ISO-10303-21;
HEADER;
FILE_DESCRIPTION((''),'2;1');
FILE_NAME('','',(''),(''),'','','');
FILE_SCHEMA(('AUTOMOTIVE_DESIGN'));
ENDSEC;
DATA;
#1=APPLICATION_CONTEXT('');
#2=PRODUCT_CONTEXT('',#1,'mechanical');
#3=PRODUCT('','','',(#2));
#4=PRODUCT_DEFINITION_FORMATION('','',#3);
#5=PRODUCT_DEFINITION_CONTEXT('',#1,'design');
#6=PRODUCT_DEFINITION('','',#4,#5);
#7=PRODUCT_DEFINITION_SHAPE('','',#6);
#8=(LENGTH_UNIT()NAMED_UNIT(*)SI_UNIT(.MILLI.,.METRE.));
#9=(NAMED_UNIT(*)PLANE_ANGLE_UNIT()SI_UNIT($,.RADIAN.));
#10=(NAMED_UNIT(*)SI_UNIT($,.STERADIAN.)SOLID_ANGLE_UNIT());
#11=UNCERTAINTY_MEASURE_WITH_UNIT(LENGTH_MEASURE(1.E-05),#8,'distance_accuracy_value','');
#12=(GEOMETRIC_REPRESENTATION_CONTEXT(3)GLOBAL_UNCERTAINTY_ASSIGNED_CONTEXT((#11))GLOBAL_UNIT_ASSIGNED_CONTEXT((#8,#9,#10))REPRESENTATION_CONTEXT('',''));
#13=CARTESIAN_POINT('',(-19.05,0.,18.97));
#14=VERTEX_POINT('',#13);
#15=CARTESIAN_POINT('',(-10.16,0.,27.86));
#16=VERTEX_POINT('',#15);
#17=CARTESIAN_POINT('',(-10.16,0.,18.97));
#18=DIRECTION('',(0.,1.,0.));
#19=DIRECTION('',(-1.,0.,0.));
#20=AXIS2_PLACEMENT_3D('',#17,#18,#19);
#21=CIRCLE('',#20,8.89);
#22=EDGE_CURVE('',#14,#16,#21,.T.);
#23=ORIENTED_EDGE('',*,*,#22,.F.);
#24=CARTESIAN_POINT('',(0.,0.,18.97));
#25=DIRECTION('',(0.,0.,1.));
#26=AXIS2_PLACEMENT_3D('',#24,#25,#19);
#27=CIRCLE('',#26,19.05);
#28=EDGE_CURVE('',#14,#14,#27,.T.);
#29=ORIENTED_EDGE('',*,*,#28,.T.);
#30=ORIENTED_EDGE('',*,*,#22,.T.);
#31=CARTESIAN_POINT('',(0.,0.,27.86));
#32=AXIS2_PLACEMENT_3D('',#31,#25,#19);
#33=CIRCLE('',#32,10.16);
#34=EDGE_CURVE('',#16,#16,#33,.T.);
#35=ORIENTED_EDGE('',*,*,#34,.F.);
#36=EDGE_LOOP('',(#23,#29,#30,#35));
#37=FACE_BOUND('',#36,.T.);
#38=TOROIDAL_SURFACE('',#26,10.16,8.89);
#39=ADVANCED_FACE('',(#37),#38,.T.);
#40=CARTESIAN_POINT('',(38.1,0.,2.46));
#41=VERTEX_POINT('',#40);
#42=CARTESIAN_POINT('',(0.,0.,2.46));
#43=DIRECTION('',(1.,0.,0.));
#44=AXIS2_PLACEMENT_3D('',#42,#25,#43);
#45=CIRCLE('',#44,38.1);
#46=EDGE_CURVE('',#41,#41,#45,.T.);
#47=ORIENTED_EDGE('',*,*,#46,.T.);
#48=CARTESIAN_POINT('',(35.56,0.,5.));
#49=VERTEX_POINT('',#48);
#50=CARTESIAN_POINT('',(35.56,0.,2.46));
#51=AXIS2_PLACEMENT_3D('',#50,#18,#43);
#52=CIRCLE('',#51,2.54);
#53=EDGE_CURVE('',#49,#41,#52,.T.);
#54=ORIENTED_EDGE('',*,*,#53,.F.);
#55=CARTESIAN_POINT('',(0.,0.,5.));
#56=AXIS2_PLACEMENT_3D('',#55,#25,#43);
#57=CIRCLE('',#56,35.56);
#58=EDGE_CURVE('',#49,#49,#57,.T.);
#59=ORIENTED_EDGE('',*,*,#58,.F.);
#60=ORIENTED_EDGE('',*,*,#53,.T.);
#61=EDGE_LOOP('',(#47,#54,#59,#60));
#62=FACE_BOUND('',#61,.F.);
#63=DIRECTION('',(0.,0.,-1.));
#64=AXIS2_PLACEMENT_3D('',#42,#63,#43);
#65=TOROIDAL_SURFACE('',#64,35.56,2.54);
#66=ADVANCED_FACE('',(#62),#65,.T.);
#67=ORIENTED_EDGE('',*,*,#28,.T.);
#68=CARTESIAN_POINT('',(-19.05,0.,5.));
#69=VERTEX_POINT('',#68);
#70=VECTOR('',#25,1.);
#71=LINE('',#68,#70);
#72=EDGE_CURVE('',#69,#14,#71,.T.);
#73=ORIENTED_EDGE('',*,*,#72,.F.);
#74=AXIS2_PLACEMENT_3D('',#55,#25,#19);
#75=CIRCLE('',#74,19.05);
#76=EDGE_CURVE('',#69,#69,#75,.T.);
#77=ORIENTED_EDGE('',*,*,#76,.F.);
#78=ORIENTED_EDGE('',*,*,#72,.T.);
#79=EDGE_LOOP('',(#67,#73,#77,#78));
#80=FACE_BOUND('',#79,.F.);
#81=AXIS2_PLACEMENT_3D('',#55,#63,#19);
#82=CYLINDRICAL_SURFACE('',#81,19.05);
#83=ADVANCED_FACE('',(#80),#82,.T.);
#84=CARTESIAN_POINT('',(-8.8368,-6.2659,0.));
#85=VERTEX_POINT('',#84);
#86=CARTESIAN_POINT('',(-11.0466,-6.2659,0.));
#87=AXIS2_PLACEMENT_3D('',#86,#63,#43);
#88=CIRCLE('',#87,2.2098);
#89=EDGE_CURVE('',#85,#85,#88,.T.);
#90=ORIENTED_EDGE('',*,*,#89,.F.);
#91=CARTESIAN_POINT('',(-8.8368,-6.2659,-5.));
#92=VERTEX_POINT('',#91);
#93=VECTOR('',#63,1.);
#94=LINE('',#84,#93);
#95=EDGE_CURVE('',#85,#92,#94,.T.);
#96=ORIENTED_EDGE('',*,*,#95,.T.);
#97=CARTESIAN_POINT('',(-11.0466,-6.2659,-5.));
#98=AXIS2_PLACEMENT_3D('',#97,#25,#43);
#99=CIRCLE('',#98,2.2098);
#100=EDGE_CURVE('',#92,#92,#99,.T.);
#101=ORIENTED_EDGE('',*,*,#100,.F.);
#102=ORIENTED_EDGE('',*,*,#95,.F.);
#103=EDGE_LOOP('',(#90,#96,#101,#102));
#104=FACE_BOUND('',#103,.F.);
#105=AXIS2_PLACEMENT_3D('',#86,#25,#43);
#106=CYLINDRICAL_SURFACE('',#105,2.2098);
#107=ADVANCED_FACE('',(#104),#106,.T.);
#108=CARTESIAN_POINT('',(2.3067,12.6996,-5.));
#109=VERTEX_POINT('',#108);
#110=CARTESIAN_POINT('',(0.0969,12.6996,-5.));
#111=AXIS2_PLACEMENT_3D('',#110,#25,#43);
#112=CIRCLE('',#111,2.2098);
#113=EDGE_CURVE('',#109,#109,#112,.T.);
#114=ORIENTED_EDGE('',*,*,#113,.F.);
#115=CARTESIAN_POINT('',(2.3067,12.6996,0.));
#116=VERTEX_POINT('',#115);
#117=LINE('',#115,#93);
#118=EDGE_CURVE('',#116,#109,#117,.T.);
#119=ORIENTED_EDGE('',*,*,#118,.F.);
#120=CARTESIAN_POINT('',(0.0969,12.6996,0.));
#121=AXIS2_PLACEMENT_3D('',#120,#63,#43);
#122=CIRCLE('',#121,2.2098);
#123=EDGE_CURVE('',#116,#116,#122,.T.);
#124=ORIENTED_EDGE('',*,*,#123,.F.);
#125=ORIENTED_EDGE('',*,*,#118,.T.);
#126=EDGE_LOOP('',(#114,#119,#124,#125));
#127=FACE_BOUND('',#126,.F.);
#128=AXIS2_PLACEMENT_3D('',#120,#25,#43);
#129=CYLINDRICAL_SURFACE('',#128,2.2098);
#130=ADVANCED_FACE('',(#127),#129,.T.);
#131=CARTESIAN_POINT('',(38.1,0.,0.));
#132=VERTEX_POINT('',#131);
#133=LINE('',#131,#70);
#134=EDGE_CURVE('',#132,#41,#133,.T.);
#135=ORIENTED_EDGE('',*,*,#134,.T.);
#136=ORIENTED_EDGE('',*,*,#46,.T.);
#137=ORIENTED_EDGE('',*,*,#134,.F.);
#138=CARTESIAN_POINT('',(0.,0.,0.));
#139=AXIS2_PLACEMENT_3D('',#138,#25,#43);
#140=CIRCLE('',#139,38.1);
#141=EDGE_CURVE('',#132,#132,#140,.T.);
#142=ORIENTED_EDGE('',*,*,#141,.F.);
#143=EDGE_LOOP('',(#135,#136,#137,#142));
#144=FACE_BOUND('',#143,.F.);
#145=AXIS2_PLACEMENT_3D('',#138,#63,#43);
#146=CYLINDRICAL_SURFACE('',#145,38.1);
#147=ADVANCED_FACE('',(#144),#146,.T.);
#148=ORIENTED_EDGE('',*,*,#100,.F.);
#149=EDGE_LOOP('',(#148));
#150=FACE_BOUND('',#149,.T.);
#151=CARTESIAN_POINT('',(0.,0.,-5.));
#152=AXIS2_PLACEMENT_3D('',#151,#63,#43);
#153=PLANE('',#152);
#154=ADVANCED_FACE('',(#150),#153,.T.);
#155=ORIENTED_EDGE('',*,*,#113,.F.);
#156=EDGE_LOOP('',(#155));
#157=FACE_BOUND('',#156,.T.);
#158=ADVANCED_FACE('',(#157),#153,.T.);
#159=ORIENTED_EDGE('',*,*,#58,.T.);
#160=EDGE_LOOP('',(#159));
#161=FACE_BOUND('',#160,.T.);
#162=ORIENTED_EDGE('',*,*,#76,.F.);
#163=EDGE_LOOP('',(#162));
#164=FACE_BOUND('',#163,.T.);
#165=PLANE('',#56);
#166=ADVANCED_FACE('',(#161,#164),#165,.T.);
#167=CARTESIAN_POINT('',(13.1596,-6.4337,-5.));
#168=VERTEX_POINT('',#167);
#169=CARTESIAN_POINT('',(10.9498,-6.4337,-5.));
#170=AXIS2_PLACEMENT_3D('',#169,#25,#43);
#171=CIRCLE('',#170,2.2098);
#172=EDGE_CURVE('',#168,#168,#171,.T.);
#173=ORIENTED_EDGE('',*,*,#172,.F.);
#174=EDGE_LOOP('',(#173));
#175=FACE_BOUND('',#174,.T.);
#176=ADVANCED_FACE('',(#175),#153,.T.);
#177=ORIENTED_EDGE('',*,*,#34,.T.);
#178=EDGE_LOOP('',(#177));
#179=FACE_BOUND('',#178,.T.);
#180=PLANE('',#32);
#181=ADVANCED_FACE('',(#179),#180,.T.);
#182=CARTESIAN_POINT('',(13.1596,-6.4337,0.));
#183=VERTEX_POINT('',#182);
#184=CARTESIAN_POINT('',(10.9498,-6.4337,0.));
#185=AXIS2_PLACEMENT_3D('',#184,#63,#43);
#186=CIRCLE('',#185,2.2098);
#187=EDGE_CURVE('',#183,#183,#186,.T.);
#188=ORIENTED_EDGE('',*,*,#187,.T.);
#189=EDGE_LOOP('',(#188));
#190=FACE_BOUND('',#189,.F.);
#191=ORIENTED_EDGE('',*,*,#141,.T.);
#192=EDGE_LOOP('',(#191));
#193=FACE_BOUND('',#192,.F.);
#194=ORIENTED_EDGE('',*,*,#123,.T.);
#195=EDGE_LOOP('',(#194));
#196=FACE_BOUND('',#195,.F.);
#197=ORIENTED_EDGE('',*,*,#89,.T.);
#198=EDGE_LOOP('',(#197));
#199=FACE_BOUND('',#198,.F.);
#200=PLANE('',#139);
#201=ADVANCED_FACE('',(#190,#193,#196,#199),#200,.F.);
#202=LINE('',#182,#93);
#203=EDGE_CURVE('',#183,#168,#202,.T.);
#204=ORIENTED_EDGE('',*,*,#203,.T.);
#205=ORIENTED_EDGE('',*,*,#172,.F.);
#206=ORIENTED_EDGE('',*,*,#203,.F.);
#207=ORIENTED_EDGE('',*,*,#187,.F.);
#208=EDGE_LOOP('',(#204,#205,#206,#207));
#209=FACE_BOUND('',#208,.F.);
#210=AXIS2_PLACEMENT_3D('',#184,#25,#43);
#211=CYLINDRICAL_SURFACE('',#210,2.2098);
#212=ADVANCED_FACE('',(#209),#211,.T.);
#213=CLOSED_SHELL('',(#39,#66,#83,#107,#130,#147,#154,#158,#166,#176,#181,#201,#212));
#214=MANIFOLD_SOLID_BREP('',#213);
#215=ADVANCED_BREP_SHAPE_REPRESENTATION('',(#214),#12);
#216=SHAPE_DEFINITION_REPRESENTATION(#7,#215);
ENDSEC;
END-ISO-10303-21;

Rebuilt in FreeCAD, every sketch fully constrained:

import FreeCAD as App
import Part
import Sketcher

V = App.Vector
Q = App.Units.Quantity


def edges_at(feature, points):
    """Names of the edges that pass closest to the given points."""
    edges = feature.Shape.Edges
    near = lambda p: min(range(len(edges)), key=lambda i: edges[i].distToShape(Part.Vertex(*p))[0])
    return sorted({f"Edge{near(p) + 1}" for p in points})

doc = App.newDocument("Part")
body = doc.addObject("PartDesign::Body", "Body")

# Sketch on XY plane
sketch1 = body.newObject("Sketcher::SketchObject", "Sketch")
sketch1.AttachmentSupport = (doc.getObject("XY_Plane"), [""])
sketch1.MapMode = "FlatFace"
sketch1.addGeometry(Part.Circle(V(0, 0, 0), V(0, 0, 1), 38), False)
sketch1.addConstraint([
    Sketcher.Constraint("Coincident", 0, 3, -1, 1),
    Sketcher.Constraint("Diameter", 0, Q("3 in")),
])
pad1 = body.newObject("PartDesign::Pad", "Pad")
pad1.Profile = sketch1
pad1.Length = 5

# Sketch on XY plane
sketch2 = body.newObject("Sketcher::SketchObject", "Sketch001")
sketch2.AttachmentSupport = (doc.getObject("XY_Plane"), [""])
sketch2.MapMode = "FlatFace"
sketch2.AttachmentOffset = App.Placement(V(0, 0, 5), App.Rotation())
sketch2.addGeometry(Part.Circle(V(0, 0, 0), V(0, 0, 1), 19), False)
sketch2.addConstraint([
    Sketcher.Constraint("Coincident", 0, 3, -1, 1),
    Sketcher.Constraint("Diameter", 0, Q("1.5 in")),
])
pad2 = body.newObject("PartDesign::Pad", "Pad001")
pad2.Profile = sketch2
pad2.Length = Q("0.9 in")

# Sketch on XY plane
sketch3 = body.newObject("Sketcher::SketchObject", "Sketch002")
sketch3.AttachmentSupport = (doc.getObject("XY_Plane"), [""])
sketch3.MapMode = "FlatFace"
sketch3.addGeometry([
    Part.Circle(V(0.1, 12.7, 0), V(0, 0, 1), 2.2),
    Part.Circle(V(10.9, -6.4, 0), V(0, 0, 1), 2.2),
    Part.Circle(V(-11, -6.3, 0), V(0, 0, 1), 2.2),
], False)
sketch3.addConstraint([
    Sketcher.Constraint("Equal", 0, 1),
    Sketcher.Constraint("Equal", 1, 2),
    Sketcher.Constraint("Diameter", 0, Q("0.174 in")),
    Sketcher.Constraint("DistanceX", 2, 3, 1, 3, Q("0.866 in")),
    Sketcher.Constraint("DistanceX", -1, 1, 1, 3, Q("0.4311 in")),
    Sketcher.Constraint("DistanceY", 1, 3, -1, 1, Q("0.2533 in")),
    Sketcher.Constraint("DistanceY", 2, 3, -1, 1, Q("0.2467 in")),
    Sketcher.Constraint("DistanceX", -1, 1, 0, 3, Q("0.097 mm")),
    Sketcher.Constraint("DistanceY", -1, 1, 0, 3, Q("12.6996 mm")),
])
pad3 = body.newObject("PartDesign::Pad", "Pad002")
pad3.Profile = sketch3
pad3.Length = 5
pad3.Reversed = True
doc.recompute()

fillet = body.newObject("PartDesign::Fillet", "Fillet")
fillet.Base = (pad3, edges_at(pad3, [(17.761, 6.889, 27.86)]))
fillet.Radius = Q("0.35 in")
doc.recompute()

fillet2 = body.newObject("PartDesign::Fillet", "Fillet001")
fillet2.Base = (fillet, edges_at(fillet, [(-35.522, -13.777, 5)]))
fillet2.Radius = Q("0.1 in")

doc.recompute()
